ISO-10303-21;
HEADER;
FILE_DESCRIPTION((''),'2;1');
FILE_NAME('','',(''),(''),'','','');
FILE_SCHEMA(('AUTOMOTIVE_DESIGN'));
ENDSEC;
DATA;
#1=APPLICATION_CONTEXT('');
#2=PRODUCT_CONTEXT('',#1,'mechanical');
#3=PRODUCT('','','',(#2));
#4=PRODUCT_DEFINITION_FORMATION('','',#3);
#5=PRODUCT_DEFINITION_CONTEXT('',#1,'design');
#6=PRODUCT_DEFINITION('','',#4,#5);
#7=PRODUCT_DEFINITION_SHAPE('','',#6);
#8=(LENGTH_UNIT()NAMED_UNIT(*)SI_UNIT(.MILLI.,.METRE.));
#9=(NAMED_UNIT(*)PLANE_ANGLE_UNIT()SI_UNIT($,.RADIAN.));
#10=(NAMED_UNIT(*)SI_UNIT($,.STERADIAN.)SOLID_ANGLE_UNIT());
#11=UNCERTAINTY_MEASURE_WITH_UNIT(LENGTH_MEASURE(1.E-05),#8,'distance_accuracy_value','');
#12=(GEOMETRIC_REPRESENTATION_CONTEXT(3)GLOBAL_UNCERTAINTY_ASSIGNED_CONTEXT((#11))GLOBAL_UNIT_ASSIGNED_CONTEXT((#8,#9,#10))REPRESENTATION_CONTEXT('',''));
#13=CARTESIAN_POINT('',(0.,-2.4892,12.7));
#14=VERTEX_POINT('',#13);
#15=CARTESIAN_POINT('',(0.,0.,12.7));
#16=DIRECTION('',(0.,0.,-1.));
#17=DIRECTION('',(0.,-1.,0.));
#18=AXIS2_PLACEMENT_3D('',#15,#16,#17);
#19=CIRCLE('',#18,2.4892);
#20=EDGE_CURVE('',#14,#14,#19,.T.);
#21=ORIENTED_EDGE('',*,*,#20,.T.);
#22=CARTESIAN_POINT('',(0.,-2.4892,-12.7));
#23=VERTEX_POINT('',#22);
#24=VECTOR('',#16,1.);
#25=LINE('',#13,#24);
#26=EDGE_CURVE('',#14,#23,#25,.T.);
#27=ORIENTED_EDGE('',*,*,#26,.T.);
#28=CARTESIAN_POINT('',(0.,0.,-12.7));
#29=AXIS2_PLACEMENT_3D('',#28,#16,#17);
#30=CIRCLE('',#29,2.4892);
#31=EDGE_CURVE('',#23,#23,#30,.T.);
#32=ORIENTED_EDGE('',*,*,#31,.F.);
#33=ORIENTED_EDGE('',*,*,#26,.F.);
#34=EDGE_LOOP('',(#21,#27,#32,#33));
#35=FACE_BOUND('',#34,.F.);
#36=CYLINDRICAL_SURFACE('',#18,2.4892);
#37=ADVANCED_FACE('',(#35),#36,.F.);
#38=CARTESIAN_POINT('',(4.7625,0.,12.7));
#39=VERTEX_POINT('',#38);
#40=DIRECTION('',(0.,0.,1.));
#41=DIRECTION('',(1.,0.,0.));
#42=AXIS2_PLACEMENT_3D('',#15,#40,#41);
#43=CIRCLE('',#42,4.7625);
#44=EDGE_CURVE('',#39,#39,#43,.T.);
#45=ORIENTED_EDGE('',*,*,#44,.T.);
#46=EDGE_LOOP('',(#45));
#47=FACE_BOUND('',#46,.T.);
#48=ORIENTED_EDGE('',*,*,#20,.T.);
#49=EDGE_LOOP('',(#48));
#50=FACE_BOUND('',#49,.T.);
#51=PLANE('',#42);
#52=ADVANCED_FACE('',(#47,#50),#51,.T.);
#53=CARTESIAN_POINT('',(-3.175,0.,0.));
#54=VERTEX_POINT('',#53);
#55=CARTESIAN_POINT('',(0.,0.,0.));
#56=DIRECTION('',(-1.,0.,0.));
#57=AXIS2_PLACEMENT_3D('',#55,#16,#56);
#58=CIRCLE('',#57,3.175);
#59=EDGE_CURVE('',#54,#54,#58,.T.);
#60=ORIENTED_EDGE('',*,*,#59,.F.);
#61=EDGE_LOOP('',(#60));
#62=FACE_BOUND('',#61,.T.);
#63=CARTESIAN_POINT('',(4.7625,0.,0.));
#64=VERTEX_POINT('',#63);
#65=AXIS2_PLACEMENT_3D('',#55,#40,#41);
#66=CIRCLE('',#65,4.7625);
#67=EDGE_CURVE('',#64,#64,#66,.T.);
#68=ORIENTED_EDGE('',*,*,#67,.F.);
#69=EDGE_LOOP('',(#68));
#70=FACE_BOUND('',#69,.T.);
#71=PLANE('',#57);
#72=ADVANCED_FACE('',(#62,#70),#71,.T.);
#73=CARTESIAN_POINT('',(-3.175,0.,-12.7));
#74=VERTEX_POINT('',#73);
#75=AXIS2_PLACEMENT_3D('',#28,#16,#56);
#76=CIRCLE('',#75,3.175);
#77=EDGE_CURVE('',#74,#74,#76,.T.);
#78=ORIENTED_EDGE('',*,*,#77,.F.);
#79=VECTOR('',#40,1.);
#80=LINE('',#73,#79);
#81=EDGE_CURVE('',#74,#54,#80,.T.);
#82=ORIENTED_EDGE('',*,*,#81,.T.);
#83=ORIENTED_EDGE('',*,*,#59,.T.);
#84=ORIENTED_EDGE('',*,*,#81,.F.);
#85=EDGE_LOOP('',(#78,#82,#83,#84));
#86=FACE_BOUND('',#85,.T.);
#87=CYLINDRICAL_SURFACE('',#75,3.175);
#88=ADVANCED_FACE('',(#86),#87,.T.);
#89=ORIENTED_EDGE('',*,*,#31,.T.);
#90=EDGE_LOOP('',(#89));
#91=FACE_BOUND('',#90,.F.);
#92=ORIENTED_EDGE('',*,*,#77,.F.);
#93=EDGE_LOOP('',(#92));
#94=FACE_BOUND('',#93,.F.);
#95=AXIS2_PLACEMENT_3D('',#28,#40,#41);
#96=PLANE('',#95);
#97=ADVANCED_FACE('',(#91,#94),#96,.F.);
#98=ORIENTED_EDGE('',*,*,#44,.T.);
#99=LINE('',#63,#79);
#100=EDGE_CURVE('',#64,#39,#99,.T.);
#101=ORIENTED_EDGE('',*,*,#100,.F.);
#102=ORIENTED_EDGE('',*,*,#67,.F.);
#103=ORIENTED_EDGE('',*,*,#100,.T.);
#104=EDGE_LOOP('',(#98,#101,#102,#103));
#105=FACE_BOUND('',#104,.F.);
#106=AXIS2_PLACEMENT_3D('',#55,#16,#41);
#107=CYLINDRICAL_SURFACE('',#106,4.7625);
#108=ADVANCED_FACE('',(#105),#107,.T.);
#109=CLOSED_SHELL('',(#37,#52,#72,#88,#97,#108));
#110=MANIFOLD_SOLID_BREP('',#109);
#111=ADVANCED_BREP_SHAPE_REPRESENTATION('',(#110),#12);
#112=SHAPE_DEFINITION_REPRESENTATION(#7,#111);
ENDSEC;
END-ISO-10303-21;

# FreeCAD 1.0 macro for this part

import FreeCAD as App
import Part
import Sketcher

V = App.Vector
Q = App.Units.Quantity

doc = App.newDocument("Part")
body = doc.addObject("PartDesign::Body", "Body")

# Sketch on XY plane
sketch1 = body.newObject("Sketcher::SketchObject", "Sketch")
sketch1.AttachmentSupport = (doc.getObject("XY_Plane"), [""])
sketch1.MapMode = "FlatFace"
sketch1.addGeometry(Part.Circle(V(0, 0, 0), V(0, 0, 1), 4.8), False)
sketch1.addConstraint([
    Sketcher.Constraint("Coincident", 0, 3, -1, 1),
    Sketcher.Constraint("Diameter", 0, Q("0.375 in")),
])
pad1 = body.newObject("PartDesign::Pad", "Pad")
pad1.Profile = sketch1
pad1.Length = Q("1 in")
pad1.Midplane = True

# Sketch on XY plane
sketch2 = body.newObject("Sketcher::SketchObject", "Sketch001")
sketch2.AttachmentSupport = (doc.getObject("XY_Plane"), [""])
sketch2.MapMode = "FlatFace"
sketch2.AttachmentOffset = App.Placement(V(0, 0, 0.5 * 25.4), App.Rotation())
sketch2.addGeometry(Part.Circle(V(0, 0, 0), V(0, 0, 1), 2.5), False)
sketch2.addConstraint([
    Sketcher.Constraint("Coincident", 0, 3, -1, 1),
    Sketcher.Constraint("Diameter", 0, Q("0.196 in")),
])
doc.recompute()
hole = body.newObject("PartDesign::Hole", "Hole")
hole.Profile = sketch2
hole.ThreadType = "None"
hole.Diameter = Q("0.196 in")
hole.DepthType = "ThroughAll"

# Sketch on XY plane
sketch3 = body.newObject("Sketcher::SketchObject", "Sketch002")
sketch3.AttachmentSupport = (doc.getObject("XY_Plane"), [""])
sketch3.MapMode = "FlatFace"
sketch3.AttachmentOffset = App.Placement(V(0, 0, -0.5 * 25.4), App.Rotation())
sketch3.addGeometry([
    Part.Circle(V(0, 0, 0), V(0, 0, 1), 4.8),
    Part.Circle(V(0, 0, 0), V(0, 0, 1), 3.2),
], False)
sketch3.addConstraint([
    Sketcher.Constraint("Coincident", 0, 3, -1, 1),
    Sketcher.Constraint("Coincident", 1, 3, -1, 1),
    Sketcher.Constraint("Diameter", 1, Q("0.25 in")),
    Sketcher.Constraint("Diameter", 0, Q("0.375 in")),
])
pocket1 = body.newObject("PartDesign::Pocket", "Pocket")
pocket1.Profile = sketch3
pocket1.Length = Q("0.5 in")
pocket1.Reversed = True

doc.recompute()
